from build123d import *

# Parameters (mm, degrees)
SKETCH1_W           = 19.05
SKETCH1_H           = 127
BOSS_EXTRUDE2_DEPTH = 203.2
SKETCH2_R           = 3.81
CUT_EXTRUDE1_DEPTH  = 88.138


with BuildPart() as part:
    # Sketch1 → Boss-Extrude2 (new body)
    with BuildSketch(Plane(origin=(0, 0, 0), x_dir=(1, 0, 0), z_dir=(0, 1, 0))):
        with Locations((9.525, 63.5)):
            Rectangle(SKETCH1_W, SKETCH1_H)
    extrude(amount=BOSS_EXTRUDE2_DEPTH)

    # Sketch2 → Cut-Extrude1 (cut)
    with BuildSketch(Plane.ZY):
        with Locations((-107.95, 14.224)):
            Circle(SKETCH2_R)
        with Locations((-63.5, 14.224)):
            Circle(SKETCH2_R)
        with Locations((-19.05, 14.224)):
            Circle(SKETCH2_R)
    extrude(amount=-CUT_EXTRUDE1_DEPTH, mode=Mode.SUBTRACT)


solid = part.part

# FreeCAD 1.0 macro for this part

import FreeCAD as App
import Part
import Sketcher
Q = App.Units.Quantity


def add_polygon(sketch, points):
    """Adds a closed chain of lines whose ends are joined by coincident constraints."""
    first, n = sketch.GeometryCount, len(points)
    for a, b in zip(points, points[1:] + points[:1]):
        sketch.addGeometry(Part.LineSegment(App.Vector(*a, 0), App.Vector(*b, 0)), False)
    for i in range(n):
        sketch.addConstraint(Sketcher.Constraint("Coincident", first + i, 2, first + (i + 1) % n, 1))

doc = App.newDocument("Part")
body = doc.addObject("PartDesign::Body", "Body")

# Sketch on XZ plane
sketch1 = doc.addObject("Sketcher::SketchObject", "Sketch")
body.addObject(sketch1)
sketch1.AttachmentSupport = (doc.XZ_Plane, [""])
sketch1.MapMode = "FlatFace"
add_polygon(sketch1, [(0, -127), (0, 0), (19.05, 0), (19.05, -127)])  # lines 0-3
sketch1.addConstraint([
    Sketcher.Constraint("Vertical", 0),
    Sketcher.Constraint("Horizontal", 1),
    Sketcher.Constraint("Vertical", 2),
    Sketcher.Constraint("Horizontal", 3),
    Sketcher.Constraint("Coincident", 0, 2, -1, 1),
    Sketcher.Constraint("DistanceY", 0, 1, 0, 2, Q("5 in")),
    Sketcher.Constraint("DistanceX", 1, 1, 1, 2, Q("0.75 in")),
])
pad1 = doc.addObject("PartDesign::Pad", "Pad")
body.addObject(pad1)
pad1.Profile = sketch1
pad1.Length = Q("8 in")
pad1.Reversed = True

# Sketch on YZ plane
sketch2 = doc.addObject("Sketcher::SketchObject", "Sketch001")
body.addObject(sketch2)
sketch2.AttachmentSupport = (doc.YZ_Plane, [""])
sketch2.MapMode = "FlatFace"
sketch2.addGeometry([
    Part.Circle(App.Vector(14.224, -107.95, 0), App.Vector(0, 0, 1), 3.81),
    Part.Circle(App.Vector(14.224, -63.5, 0), App.Vector(0, 0, 1), 3.81),
    Part.Circle(App.Vector(14.224, -19.05, 0), App.Vector(0, 0, 1), 3.81),
], False)
sketch2.addConstraint([
    Sketcher.Constraint("Equal", 0, 1),
    Sketcher.Constraint("Equal", 1, 2),
    Sketcher.Constraint("Vertical", 0, 3, 1, 3),
    Sketcher.Constraint("Vertical", 1, 3, 2, 3),
    Sketcher.Constraint("Diameter", 0, Q("0.3 in")),
    Sketcher.Constraint("DistanceY", 1, 3, -1, 1, Q("2.5 in")),
    Sketcher.Constraint("DistanceY", 0, 3, 2, 3, Q("3.5 in")),
    Sketcher.Constraint("DistanceX", -1, 1, 0, 3, Q("0.56 in")),
    Sketcher.Constraint("DistanceY", 0, 3, -1, 1, Q("4.25 in")),
])
pocket1 = doc.addObject("PartDesign::Pocket", "Pocket")
body.addObject(pocket1)
pocket1.Profile = sketch2
pocket1.Length = Q("3.47 in")
pocket1.Reversed = True

doc.recompute()
